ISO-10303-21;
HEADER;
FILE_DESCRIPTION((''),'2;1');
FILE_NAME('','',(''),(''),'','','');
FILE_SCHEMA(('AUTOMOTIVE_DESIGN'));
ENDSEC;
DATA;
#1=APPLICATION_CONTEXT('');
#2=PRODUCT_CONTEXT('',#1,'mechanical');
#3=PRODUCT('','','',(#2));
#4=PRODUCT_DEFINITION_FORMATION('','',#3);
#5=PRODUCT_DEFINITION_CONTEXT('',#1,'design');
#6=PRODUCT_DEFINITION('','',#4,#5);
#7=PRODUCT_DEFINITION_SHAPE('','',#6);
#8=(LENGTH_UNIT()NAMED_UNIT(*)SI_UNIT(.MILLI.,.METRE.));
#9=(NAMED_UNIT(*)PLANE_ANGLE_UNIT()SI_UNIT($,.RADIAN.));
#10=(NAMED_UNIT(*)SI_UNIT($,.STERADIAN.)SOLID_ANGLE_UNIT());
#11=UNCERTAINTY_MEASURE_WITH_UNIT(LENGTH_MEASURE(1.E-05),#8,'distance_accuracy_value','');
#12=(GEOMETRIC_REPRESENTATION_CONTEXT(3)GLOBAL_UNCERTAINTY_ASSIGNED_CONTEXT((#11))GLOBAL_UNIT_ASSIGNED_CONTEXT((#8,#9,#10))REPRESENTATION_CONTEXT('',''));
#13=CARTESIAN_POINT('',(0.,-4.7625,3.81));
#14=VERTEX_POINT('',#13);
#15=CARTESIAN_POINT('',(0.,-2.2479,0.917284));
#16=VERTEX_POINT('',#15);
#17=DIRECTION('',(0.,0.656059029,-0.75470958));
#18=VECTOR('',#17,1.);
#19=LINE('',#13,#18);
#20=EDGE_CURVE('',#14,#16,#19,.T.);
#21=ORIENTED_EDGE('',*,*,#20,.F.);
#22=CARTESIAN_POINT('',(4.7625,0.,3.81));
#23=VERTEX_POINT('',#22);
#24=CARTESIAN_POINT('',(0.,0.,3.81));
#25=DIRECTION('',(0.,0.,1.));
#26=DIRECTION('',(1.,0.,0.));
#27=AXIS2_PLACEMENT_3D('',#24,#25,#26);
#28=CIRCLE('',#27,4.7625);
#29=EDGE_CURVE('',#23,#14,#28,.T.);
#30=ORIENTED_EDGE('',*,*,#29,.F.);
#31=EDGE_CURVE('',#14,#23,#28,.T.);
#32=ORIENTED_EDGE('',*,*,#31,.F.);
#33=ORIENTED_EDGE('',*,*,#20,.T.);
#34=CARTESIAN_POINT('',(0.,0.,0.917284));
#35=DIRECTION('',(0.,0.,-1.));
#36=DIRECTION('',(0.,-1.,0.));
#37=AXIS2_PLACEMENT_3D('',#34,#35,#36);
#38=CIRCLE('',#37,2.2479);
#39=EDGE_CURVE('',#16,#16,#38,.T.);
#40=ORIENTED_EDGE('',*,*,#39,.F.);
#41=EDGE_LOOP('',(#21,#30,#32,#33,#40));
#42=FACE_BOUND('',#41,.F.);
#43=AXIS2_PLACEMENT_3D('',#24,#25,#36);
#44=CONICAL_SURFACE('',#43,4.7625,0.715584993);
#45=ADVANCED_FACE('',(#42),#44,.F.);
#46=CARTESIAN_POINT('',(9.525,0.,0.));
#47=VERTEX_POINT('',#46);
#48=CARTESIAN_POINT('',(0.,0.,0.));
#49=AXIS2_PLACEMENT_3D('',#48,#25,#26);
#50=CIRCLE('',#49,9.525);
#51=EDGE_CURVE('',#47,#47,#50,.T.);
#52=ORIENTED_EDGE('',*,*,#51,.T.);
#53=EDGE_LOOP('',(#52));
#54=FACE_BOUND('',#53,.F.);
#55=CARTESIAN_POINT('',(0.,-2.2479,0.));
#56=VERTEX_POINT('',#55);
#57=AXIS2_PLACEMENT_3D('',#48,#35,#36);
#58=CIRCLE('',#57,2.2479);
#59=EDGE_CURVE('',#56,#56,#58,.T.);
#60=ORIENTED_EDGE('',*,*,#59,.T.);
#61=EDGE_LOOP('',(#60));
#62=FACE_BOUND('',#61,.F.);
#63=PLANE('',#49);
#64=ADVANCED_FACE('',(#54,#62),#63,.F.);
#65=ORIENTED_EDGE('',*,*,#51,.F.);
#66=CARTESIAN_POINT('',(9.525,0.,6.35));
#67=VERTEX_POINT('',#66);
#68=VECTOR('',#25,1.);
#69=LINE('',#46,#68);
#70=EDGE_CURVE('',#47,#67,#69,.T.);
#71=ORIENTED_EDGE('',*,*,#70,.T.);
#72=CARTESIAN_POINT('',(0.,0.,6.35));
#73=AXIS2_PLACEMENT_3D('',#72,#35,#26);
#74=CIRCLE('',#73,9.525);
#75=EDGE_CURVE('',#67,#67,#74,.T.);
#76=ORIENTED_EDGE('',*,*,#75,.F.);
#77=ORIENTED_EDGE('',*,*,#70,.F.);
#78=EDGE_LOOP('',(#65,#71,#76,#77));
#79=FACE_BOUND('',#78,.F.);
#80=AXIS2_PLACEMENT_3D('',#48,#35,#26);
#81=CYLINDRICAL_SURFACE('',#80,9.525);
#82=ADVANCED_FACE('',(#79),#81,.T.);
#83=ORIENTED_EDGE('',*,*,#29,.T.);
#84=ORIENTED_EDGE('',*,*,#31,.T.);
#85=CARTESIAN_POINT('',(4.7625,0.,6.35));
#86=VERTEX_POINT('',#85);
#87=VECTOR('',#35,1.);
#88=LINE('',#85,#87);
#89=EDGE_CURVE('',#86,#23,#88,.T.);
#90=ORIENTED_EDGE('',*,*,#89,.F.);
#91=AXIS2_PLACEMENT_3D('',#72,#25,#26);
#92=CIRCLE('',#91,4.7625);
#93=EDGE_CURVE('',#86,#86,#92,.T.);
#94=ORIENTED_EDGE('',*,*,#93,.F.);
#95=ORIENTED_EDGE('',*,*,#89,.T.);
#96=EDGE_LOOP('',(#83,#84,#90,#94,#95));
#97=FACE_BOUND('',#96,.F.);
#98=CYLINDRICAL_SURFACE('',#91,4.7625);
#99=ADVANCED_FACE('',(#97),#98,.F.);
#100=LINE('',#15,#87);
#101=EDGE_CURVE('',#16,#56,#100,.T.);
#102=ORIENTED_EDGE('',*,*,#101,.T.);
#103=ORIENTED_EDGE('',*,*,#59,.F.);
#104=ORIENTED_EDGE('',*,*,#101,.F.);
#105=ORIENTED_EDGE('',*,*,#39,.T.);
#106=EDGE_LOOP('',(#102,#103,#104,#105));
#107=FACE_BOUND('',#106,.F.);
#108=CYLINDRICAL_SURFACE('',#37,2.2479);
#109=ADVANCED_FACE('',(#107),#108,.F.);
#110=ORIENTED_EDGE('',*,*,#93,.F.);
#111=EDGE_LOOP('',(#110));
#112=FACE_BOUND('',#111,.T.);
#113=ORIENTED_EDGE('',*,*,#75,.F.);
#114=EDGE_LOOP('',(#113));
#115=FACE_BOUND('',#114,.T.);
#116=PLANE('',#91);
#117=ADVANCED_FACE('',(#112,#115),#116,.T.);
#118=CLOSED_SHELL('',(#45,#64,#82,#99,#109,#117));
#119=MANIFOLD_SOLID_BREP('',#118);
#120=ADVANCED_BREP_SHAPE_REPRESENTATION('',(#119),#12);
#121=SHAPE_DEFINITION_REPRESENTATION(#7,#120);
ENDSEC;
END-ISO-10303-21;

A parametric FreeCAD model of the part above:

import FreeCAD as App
import Part
import Sketcher

V = App.Vector
Q = App.Units.Quantity

doc = App.newDocument("Part")
body = doc.addObject("PartDesign::Body", "Body")

# Sketch on XY plane
sketch1 = body.newObject("Sketcher::SketchObject", "Sketch")
sketch1.AttachmentSupport = (doc.getObject("XY_Plane"), [""])
sketch1.MapMode = "FlatFace"
sketch1.addGeometry(Part.Circle(V(0, 0, 0), V(0, 0, 1), 10), False)
sketch1.addConstraint(Sketcher.Constraint("Coincident", 0, 3, -1, 1))
sketch1.addConstraint(Sketcher.Constraint("Diameter", 0, Q("0.75 in")))
pad1 = body.newObject("PartDesign::Pad", "Pad")
pad1.Profile = sketch1
pad1.Length = Q("0.25 in")

# Sketch on XY plane
sketch2 = body.newObject("Sketcher::SketchObject", "Sketch001")
sketch2.AttachmentSupport = (doc.getObject("XY_Plane"), [""])
sketch2.MapMode = "FlatFace"
sketch2.AttachmentOffset = App.Placement(V(0, 0, 0.25 * 25.4), App.Rotation())
sketch2.addGeometry(Part.Circle(V(0, 0, 0), V(0, 0, 1), 4.8), False)
sketch2.addConstraint(Sketcher.Constraint("Coincident", 0, 3, -1, 1))
sketch2.addConstraint(Sketcher.Constraint("Diameter", 0, Q("0.375 in")))
pocket1 = body.newObject("PartDesign::Pocket", "Pocket")
pocket1.Profile = sketch2
pocket1.Length = Q("0.1 in")

# Sketch on XY plane
sketch3 = body.newObject("Sketcher::SketchObject", "Sketch002")
sketch3.AttachmentSupport = (doc.getObject("XY_Plane"), [""])
sketch3.MapMode = "FlatFace"
sketch3.AttachmentOffset = App.Placement(V(0, 0, 0.15 * 25.4), App.Rotation())
sketch3.addGeometry(Part.Circle(V(0, 0, 0), V(0, 0, 1), 2.2), False)
sketch3.addConstraint(Sketcher.Constraint("Coincident", 0, 3, -1, 1))
sketch3.addConstraint(Sketcher.Constraint("Diameter", 0, Q("0.177 in")))
doc.recompute()
hole = body.newObject("PartDesign::Hole", "Hole")
hole.Profile = sketch3
hole.ThreadType = "None"
hole.Diameter = Q("0.177 in")
hole.DepthType = "ThroughAll"
hole.HoleCutType = "Countersink"
hole.HoleCutDiameter = Q("0.375 in")
hole.HoleCutCountersinkAngle = 82

doc.recompute()
